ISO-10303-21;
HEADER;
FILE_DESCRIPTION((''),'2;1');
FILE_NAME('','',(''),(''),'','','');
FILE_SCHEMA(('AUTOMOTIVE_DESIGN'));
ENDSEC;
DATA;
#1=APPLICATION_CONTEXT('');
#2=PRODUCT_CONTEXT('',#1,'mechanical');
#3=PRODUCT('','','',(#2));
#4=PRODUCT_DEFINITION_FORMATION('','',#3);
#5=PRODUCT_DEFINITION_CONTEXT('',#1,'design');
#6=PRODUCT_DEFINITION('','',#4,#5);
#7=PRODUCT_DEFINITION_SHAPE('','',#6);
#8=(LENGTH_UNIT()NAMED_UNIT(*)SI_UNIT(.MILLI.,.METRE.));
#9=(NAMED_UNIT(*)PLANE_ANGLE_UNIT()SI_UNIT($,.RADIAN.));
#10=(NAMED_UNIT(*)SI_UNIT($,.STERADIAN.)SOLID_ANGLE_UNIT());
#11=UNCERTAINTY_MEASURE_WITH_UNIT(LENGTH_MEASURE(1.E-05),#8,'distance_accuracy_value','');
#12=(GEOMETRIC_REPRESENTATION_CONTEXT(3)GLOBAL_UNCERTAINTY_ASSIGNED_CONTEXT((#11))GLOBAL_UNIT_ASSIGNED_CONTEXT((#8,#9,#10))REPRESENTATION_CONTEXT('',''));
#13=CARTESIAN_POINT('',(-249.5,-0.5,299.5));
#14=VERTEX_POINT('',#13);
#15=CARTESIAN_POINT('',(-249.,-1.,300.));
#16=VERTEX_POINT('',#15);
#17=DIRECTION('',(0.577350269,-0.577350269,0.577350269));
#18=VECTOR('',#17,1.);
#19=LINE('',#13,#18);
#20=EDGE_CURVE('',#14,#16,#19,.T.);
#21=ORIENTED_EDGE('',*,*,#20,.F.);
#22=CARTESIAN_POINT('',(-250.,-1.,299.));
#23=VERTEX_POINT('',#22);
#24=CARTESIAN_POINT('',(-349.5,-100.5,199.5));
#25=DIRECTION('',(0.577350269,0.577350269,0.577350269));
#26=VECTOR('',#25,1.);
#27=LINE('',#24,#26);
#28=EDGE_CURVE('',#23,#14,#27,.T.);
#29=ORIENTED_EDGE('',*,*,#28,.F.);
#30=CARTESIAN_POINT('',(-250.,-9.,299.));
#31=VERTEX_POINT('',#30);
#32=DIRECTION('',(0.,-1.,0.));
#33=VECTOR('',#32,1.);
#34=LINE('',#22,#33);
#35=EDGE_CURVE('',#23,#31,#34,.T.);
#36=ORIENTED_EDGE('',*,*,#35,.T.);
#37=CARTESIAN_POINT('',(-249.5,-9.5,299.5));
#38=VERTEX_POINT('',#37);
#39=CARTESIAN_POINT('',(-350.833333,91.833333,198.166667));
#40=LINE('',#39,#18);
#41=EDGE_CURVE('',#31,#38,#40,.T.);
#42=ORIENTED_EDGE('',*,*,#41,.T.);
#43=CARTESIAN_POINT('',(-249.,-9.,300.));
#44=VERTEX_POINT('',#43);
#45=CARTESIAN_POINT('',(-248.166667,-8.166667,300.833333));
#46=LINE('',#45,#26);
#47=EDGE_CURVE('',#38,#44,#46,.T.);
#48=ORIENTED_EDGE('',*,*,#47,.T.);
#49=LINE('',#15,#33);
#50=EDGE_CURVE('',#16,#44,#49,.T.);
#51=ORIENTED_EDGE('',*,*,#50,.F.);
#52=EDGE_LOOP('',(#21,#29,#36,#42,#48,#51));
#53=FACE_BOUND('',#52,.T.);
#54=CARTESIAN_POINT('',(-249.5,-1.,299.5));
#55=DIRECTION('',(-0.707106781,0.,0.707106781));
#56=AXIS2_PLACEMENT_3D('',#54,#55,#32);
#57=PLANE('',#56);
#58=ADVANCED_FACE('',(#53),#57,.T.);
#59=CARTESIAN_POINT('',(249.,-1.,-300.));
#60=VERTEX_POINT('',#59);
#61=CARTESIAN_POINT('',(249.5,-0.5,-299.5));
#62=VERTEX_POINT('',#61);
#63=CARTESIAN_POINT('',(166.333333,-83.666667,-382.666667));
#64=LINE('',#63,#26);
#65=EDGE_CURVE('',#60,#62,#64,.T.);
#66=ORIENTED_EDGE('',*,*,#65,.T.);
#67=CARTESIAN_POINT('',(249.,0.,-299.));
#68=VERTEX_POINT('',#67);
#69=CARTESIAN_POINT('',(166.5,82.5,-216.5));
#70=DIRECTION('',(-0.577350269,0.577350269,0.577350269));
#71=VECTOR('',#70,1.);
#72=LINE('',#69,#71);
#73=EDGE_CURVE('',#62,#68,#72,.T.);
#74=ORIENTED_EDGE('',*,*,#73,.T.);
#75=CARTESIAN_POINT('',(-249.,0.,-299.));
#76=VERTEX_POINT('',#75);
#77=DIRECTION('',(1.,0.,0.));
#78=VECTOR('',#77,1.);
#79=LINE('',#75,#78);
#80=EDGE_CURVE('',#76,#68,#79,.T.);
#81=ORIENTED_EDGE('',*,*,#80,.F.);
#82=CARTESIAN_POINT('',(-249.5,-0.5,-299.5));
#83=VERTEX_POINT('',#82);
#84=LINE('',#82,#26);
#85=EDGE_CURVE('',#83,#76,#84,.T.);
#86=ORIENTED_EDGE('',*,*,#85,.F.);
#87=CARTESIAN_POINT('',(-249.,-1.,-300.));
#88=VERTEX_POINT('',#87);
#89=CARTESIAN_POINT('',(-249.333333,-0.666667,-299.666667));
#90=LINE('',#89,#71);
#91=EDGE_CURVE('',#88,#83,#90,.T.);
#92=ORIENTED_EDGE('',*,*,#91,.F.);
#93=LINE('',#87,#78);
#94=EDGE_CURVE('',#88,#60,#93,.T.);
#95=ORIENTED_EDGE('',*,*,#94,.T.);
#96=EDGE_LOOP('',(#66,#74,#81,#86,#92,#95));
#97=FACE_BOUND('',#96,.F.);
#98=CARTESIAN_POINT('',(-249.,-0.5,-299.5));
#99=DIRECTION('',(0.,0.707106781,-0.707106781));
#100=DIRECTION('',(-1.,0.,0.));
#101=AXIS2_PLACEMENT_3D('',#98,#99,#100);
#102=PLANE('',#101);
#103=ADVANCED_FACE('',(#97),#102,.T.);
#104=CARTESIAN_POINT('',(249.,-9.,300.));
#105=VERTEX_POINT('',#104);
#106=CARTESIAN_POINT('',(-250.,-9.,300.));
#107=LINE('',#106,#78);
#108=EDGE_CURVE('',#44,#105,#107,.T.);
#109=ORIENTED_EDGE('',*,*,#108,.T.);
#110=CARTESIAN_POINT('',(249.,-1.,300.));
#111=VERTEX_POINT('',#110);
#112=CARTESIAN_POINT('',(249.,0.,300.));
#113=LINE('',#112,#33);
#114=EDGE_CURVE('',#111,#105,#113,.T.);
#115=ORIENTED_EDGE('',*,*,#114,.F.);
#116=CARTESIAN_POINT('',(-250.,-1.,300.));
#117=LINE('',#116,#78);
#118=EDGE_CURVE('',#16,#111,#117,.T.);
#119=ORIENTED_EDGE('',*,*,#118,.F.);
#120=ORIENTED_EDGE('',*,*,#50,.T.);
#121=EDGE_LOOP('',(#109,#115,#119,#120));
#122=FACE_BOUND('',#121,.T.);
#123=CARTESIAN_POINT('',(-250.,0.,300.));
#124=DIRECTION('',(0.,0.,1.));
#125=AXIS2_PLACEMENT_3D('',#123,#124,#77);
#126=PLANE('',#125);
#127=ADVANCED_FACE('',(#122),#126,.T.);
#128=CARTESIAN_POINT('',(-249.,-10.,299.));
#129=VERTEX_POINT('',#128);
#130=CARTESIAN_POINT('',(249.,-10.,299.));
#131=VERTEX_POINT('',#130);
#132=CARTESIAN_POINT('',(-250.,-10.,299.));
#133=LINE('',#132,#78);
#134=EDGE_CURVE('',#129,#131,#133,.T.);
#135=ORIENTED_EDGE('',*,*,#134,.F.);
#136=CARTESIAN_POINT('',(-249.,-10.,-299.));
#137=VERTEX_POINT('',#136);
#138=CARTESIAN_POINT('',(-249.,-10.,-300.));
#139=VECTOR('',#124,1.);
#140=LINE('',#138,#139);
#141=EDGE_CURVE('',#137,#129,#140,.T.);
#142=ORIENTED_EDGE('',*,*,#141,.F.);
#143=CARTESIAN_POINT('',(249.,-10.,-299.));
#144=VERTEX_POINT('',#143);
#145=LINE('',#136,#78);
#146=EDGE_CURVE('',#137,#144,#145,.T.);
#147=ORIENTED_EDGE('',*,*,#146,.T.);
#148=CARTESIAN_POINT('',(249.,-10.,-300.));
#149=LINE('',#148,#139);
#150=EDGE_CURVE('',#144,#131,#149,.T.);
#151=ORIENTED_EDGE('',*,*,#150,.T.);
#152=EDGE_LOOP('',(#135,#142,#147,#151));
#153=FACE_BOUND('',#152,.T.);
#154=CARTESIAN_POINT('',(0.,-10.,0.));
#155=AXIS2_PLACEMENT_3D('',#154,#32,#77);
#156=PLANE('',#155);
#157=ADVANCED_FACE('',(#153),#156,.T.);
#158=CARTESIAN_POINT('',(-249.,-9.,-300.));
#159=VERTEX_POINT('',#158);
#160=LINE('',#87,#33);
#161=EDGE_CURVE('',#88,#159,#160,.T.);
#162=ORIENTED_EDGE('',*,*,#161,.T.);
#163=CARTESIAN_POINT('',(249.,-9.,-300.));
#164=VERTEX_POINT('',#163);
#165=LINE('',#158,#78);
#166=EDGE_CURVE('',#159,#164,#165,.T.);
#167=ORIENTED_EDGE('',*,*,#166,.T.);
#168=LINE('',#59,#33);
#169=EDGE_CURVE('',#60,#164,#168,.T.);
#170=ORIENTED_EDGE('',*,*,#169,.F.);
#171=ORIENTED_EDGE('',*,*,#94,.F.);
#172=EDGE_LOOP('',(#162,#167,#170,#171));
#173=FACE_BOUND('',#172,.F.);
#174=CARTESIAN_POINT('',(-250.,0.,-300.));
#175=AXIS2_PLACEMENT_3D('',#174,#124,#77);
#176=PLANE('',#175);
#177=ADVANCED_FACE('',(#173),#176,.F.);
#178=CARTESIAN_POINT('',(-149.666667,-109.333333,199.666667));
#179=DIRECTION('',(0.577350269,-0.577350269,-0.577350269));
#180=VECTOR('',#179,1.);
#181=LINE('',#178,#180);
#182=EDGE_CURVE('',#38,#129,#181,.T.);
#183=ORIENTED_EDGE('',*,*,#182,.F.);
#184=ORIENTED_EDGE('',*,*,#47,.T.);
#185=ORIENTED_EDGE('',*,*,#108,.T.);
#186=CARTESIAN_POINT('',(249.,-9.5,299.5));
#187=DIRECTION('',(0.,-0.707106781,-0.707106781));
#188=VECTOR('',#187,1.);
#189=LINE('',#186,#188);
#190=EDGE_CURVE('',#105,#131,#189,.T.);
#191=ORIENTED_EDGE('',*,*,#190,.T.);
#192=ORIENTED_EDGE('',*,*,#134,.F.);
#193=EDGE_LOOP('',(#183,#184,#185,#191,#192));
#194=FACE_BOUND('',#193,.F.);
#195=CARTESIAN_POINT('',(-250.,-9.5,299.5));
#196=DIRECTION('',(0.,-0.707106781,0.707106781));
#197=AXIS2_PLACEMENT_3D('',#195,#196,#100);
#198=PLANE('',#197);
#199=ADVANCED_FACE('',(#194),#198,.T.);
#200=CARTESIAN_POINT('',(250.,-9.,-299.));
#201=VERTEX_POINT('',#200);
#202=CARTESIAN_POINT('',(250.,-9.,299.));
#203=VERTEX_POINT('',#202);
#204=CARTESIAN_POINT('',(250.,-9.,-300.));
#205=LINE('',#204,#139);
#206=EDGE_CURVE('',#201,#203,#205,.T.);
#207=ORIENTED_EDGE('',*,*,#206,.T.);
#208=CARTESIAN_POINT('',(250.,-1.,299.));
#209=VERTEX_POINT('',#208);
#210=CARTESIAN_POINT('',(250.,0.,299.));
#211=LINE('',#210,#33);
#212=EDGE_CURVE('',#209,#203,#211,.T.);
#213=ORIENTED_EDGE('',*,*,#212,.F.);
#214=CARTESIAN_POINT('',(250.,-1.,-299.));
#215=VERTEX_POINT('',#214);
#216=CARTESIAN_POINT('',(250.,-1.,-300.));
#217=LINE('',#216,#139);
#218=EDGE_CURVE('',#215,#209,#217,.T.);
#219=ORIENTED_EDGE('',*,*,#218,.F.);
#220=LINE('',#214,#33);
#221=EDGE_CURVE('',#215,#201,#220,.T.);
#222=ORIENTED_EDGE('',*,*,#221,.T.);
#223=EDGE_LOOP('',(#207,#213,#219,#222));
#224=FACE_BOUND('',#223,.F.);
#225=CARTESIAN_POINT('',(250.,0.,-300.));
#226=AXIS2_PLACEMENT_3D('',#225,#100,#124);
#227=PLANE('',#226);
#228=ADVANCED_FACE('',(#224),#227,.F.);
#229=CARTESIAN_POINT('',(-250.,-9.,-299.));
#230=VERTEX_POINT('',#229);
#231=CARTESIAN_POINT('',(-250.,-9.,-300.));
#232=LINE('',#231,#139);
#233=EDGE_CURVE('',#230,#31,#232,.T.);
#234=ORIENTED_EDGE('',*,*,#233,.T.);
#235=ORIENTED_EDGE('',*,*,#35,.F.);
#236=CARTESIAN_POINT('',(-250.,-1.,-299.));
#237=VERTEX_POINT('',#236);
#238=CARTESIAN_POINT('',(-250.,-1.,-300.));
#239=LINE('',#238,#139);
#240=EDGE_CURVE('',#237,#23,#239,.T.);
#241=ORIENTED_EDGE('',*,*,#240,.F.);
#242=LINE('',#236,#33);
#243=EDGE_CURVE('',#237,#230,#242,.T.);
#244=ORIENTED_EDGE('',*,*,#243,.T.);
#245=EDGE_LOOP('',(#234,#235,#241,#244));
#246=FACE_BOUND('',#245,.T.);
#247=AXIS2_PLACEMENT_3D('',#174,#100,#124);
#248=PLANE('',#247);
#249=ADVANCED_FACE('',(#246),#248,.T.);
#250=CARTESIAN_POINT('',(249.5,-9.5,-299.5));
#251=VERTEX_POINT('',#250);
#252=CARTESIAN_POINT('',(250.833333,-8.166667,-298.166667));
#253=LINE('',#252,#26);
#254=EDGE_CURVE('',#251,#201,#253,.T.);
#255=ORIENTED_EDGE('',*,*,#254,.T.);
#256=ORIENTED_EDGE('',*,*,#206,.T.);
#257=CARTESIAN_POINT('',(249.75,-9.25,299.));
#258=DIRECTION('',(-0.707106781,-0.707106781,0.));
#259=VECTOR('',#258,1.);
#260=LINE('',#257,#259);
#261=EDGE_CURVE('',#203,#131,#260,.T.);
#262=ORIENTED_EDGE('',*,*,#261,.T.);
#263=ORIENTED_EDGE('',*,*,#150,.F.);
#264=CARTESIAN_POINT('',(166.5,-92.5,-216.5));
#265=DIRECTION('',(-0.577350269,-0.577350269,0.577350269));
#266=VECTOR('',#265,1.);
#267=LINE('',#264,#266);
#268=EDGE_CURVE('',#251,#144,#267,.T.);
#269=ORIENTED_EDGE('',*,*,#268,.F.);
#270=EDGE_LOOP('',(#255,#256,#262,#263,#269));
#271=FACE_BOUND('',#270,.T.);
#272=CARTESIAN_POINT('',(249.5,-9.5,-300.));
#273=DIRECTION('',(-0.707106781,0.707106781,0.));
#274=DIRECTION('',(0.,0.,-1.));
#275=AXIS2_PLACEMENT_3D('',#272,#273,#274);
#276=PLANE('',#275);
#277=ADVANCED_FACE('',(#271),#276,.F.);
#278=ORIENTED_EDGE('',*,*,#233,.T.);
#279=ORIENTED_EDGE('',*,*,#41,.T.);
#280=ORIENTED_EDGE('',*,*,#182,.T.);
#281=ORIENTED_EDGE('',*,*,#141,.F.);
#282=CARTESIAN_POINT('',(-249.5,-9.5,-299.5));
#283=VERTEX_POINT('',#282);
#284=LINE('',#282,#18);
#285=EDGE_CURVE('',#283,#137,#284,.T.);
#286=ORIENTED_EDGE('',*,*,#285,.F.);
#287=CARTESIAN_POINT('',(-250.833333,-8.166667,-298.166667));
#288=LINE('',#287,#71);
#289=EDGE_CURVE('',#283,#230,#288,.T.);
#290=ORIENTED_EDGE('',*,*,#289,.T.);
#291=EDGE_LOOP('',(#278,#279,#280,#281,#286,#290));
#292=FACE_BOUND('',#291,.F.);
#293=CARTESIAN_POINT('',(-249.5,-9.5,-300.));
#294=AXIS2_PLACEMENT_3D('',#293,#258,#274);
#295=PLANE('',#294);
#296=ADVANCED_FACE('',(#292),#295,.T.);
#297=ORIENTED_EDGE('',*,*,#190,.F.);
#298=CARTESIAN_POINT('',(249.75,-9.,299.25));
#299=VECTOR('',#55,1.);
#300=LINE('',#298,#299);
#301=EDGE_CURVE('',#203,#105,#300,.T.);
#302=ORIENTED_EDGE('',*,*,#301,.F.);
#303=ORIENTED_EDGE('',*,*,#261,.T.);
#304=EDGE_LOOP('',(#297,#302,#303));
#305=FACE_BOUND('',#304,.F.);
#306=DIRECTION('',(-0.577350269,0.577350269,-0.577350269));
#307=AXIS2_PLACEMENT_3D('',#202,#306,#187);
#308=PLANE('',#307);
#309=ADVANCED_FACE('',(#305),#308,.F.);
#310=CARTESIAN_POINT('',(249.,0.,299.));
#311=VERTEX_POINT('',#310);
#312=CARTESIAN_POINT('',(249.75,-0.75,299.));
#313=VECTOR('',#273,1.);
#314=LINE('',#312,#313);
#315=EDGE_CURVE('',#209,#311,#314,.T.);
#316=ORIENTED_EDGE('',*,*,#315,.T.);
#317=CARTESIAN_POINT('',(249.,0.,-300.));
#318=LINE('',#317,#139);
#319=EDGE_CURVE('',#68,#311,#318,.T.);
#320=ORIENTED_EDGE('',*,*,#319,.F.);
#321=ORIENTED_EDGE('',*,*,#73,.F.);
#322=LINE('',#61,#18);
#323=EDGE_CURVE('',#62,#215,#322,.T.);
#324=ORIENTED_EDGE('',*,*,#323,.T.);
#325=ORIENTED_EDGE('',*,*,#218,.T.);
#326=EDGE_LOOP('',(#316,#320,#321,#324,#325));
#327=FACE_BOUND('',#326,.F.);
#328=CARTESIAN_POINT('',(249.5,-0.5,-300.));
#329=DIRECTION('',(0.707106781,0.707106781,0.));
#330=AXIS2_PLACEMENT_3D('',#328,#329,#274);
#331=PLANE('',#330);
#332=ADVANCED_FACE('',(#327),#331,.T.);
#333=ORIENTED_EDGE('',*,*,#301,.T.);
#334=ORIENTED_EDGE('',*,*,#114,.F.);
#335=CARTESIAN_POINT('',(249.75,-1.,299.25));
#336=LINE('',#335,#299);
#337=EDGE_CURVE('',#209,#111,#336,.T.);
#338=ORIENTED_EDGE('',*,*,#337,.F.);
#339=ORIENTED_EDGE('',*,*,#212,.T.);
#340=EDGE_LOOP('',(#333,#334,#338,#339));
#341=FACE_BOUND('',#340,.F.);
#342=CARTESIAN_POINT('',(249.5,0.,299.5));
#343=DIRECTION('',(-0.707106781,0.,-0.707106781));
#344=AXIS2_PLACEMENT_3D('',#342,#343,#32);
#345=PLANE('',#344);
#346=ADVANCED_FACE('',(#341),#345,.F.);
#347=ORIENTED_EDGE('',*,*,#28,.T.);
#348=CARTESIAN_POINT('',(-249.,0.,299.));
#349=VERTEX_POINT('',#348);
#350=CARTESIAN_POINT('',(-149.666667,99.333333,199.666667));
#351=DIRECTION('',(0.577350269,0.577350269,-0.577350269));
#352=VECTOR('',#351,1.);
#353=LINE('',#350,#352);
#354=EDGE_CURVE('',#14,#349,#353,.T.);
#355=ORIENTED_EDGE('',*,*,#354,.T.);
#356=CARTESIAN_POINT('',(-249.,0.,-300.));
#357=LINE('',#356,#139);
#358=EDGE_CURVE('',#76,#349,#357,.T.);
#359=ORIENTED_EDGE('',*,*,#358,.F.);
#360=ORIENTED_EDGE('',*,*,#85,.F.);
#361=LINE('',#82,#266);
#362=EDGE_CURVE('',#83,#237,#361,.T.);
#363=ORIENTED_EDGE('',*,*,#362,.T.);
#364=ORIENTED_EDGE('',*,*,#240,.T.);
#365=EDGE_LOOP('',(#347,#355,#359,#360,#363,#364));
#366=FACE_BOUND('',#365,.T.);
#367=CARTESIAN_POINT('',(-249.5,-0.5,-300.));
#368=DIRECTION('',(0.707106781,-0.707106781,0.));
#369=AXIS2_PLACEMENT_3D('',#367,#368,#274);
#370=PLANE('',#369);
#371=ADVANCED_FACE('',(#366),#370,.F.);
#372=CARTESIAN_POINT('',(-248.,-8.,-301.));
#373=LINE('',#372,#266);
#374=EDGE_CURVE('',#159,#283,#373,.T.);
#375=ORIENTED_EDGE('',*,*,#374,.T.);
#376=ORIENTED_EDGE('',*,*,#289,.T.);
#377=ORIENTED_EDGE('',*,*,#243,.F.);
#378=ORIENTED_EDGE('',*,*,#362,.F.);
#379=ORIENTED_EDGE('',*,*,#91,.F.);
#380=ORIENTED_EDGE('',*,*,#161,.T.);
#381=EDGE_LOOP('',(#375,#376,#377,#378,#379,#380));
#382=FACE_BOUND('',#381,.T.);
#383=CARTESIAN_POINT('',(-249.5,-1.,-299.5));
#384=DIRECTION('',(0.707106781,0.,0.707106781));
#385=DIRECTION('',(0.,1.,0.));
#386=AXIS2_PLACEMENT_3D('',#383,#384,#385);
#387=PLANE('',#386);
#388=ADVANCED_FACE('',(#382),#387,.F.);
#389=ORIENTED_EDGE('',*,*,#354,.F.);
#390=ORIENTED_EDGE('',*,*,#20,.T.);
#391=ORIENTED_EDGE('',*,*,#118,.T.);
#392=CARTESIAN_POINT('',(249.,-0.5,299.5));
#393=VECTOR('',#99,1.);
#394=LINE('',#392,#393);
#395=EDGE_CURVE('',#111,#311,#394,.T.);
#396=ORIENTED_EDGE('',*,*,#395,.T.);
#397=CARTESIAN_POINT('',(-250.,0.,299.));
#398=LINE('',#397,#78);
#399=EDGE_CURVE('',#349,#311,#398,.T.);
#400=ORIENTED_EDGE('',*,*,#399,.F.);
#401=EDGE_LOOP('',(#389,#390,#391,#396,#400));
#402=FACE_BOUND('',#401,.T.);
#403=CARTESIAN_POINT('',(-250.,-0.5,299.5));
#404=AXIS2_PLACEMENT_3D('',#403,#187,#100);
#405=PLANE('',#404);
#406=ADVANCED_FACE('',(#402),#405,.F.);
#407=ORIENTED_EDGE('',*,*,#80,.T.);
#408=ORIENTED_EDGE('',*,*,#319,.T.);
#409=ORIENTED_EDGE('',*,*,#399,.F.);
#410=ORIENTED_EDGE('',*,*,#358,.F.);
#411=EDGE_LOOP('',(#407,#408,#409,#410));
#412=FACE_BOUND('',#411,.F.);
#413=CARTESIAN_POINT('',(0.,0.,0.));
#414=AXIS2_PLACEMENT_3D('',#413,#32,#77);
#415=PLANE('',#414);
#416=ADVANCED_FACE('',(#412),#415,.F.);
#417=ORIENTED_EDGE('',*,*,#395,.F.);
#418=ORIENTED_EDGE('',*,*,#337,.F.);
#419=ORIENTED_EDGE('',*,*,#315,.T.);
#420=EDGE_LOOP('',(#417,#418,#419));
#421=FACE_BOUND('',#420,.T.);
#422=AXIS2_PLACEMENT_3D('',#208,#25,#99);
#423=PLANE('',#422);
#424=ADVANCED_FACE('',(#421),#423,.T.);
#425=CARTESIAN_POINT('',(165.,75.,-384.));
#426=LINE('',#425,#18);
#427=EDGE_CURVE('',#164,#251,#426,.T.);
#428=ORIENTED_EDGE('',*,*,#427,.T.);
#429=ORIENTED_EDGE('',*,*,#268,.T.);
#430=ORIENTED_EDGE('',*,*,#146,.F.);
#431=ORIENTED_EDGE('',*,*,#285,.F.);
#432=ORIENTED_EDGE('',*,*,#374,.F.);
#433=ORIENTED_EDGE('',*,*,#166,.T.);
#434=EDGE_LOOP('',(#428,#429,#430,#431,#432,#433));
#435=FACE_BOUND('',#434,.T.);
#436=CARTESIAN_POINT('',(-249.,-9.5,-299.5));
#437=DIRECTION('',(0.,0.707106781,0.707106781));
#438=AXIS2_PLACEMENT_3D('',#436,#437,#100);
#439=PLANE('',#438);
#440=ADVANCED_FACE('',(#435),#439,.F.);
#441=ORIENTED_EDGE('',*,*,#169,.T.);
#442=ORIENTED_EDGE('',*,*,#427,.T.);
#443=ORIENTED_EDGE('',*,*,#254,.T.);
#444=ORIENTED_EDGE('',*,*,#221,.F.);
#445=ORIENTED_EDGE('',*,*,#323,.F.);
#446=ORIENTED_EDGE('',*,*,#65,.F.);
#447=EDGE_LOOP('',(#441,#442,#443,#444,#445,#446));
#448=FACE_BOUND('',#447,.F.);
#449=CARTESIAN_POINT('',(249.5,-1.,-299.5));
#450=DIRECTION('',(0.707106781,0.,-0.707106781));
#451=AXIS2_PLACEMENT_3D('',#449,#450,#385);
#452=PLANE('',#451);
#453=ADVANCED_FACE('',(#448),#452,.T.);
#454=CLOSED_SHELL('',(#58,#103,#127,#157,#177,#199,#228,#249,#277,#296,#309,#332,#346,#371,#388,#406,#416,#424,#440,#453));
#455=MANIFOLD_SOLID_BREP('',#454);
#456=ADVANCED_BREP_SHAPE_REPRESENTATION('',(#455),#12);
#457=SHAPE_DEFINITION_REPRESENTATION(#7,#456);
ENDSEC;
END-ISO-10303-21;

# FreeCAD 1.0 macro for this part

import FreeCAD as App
import Part
import Sketcher

V = App.Vector
Q = App.Units.Quantity


def edges_at(feature, points):
    """Names of the edges that pass closest to the given points."""
    edges = feature.Shape.Edges
    near = lambda p: min(range(len(edges)), key=lambda i: edges[i].distToShape(Part.Vertex(*p))[0])
    return sorted({f"Edge{near(p) + 1}" for p in points})

doc = App.newDocument("Part")
body = doc.addObject("PartDesign::Body", "Body")

sketch1 = body.newObject("Sketcher::SketchObject", "Sketch")
sketch1.AttachmentSupport = (doc.getObject("XZ_Plane"), [""])
sketch1.MapMode = "FlatFace"
sketch1.addGeometry([
    Part.LineSegment(V(-250, 300, 0), V(-250, -300, 0)),
    Part.LineSegment(V(-250, -300, 0), V(250, -300, 0)),
    Part.LineSegment(V(250, -300, 0), V(250, 300, 0)),
    Part.LineSegment(V(250, 300, 0), V(-250, 300, 0)),
], False)
sketch1.addConstraint([
    Sketcher.Constraint("Coincident", 0, 2, 1, 1),
    Sketcher.Constraint("Coincident", 1, 2, 2, 1),
    Sketcher.Constraint("Coincident", 2, 2, 3, 1),
    Sketcher.Constraint("Coincident", 3, 2, 0, 1),
    Sketcher.Constraint("Vertical", 0),
    Sketcher.Constraint("Horizontal", 1),
    Sketcher.Constraint("Vertical", 2),
    Sketcher.Constraint("Horizontal", 3),
    Sketcher.Constraint("Symmetric", 0, 2, 2, 2, -1, 1),
    Sketcher.Constraint("DistanceX", 1, 1, 1, 2, Q("500 mm")),
    Sketcher.Constraint("DistanceY", 0, 2, 0, 1, Q("600 mm")),
])
pad1 = body.newObject("PartDesign::Pad", "Pad")
pad1.Profile = sketch1
pad1.Length = 10
doc.recompute()

chamfer = body.newObject("PartDesign::Chamfer", "Chamfer")
chamfer.Base = (pad1, edges_at(pad1, [
    (0, -10, 300),
    (0, 0, 300),
    (250, -5, 300),
    (250, 0, 0),
    (250, -10, 0),
]))
chamfer.Size = 1
doc.recompute()

chamfer2 = body.newObject("PartDesign::Chamfer", "Chamfer001")
chamfer2.Base = (chamfer, edges_at(chamfer, [(-250, -5, 300)]))
chamfer2.Size = 1
doc.recompute()

chamfer3 = body.newObject("PartDesign::Chamfer", "Chamfer002")
chamfer3.Base = (chamfer2, edges_at(chamfer2, [(-250, -10, -0.5)]))
chamfer3.Size = 1
doc.recompute()

chamfer4 = body.newObject("PartDesign::Chamfer", "Chamfer003")
chamfer4.Base = (chamfer3, edges_at(chamfer3, [(-250, 0, -0.5)]))
chamfer4.Size = 1
doc.recompute()

chamfer5 = body.newObject("PartDesign::Chamfer", "Chamfer004")
chamfer5.Base = (chamfer4, edges_at(chamfer4, [(250, -5, -300)]))
chamfer5.Size = 1
doc.recompute()

chamfer6 = body.newObject("PartDesign::Chamfer", "Chamfer005")
chamfer6.Base = (chamfer5, edges_at(chamfer5, [(0, -10, -300)]))
chamfer6.Size = 1
doc.recompute()

chamfer7 = body.newObject("PartDesign::Chamfer", "Chamfer006")
chamfer7.Base = (chamfer6, edges_at(chamfer6, [(0, 0, -300)]))
chamfer7.Size = 1
doc.recompute()

chamfer8 = body.newObject("PartDesign::Chamfer", "Chamfer007")
chamfer8.Base = (chamfer7, edges_at(chamfer7, [(-250, -5, -300)]))
chamfer8.Size = 1

doc.recompute()
